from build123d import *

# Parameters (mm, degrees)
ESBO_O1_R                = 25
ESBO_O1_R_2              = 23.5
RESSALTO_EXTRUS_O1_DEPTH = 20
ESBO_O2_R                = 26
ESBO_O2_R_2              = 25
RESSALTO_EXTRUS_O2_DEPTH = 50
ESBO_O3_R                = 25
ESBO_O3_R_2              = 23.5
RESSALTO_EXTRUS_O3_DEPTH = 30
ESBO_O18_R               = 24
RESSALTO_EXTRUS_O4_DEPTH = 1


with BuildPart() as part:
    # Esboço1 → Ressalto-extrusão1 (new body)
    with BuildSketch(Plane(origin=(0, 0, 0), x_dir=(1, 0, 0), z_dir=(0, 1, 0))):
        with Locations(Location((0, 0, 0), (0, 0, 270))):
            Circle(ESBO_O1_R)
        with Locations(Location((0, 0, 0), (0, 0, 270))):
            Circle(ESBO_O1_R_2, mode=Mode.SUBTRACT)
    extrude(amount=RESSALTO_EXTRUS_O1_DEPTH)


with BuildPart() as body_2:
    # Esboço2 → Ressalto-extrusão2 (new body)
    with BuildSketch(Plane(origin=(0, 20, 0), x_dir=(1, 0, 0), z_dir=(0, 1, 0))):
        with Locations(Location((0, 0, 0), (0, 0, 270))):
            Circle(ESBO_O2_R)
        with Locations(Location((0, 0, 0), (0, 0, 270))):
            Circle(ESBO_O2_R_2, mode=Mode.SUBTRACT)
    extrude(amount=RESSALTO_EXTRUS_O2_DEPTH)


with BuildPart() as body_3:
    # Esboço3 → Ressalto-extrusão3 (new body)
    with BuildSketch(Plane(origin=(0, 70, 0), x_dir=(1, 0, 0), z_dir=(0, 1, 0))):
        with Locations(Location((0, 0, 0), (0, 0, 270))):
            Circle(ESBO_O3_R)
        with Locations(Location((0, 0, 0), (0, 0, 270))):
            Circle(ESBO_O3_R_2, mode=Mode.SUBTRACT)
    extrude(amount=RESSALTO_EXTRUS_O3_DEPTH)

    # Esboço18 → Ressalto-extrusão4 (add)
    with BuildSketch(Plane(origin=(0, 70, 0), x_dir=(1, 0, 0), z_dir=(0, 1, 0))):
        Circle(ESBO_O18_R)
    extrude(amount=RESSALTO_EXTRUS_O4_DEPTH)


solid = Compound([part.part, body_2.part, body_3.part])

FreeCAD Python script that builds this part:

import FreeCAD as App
import Part
import Sketcher

V = App.Vector
Q = App.Units.Quantity

doc = App.newDocument("Part")
params = doc.addObject("Spreadsheet::Sheet", "Params")
for row, (alias, value) in enumerate([
    ("sketch1_diameter", "50 mm"),
    ("sketch1_diameter2", "47 mm"),
    ("pad1_length", "20 mm"),
    ("sketch2_diameter", "52 mm"),
    ("sketch2_diameter2", "50 mm"),
    ("pad2_length", "50 mm"),
    ("sketch3_diameter", "50 mm"),
    ("sketch3_diameter2", "47 mm"),
    ("pad3_length", "30 mm"),
    ("sketch4_diameter", "48 mm"),
    ("pad4_length", "1 mm"),
], start=1):
    params.set(f"A{row}", alias)
    params.set(f"B{row}", "=" + value)
    params.setAlias(f"B{row}", alias)

body = doc.addObject("PartDesign::Body", "Body")

sketch1 = body.newObject("Sketcher::SketchObject", "Sketch")
sketch1.AttachmentSupport = (doc.getObject("XZ_Plane"), [""])
sketch1.MapMode = "FlatFace"
sketch1.addGeometry(Part.Circle(V(0, 0, 0), V(0, 0, 1), 25), False)
sketch1.addGeometry(Part.Circle(V(0, 0, 0), V(0, 0, 1), 24), False)
sketch1.addConstraint(Sketcher.Constraint("Coincident", 0, 3, -1, 1))
sketch1.addConstraint(Sketcher.Constraint("Coincident", 1, 3, -1, 1))
sketch1.addConstraint(Sketcher.Constraint("Diameter", 0, Q("50 mm")))
sketch1.addConstraint(Sketcher.Constraint("Diameter", 1, Q("47 mm")))
sketch1.setExpression("Constraints[2]", "Params.sketch1_diameter")
sketch1.setExpression("Constraints[3]", "Params.sketch1_diameter2")
pad1 = body.newObject("PartDesign::Pad", "Pad")
pad1.Profile = sketch1
pad1.setExpression("Length", "Params.pad1_length")
pad1.Reversed = True
body2 = doc.addObject("PartDesign::Body", "Body001")

sketch2 = body2.newObject("Sketcher::SketchObject", "Sketch001")
sketch2.AttachmentSupport = (doc.getObject("XZ_Plane001"), [""])
sketch2.MapMode = "FlatFace"
sketch2.AttachmentOffset = App.Placement(V(0, 0, -20), App.Rotation())
sketch2.addGeometry(Part.Circle(V(0, 0, 0), V(0, 0, 1), 26), False)
sketch2.addGeometry(Part.Circle(V(0, 0, 0), V(0, 0, 1), 25), False)
sketch2.addConstraint(Sketcher.Constraint("Coincident", 0, 3, -1, 1))
sketch2.addConstraint(Sketcher.Constraint("Coincident", 1, 3, -1, 1))
sketch2.addConstraint(Sketcher.Constraint("Diameter", 0, Q("52 mm")))
sketch2.addConstraint(Sketcher.Constraint("Diameter", 1, Q("50 mm")))
sketch2.setExpression("Constraints[2]", "Params.sketch2_diameter")
sketch2.setExpression("Constraints[3]", "Params.sketch2_diameter2")
pad2 = body2.newObject("PartDesign::Pad", "Pad001")
pad2.Profile = sketch2
pad2.setExpression("Length", "Params.pad2_length")
pad2.Reversed = True
body3 = doc.addObject("PartDesign::Body", "Body002")

sketch3 = body3.newObject("Sketcher::SketchObject", "Sketch002")
sketch3.AttachmentSupport = (doc.getObject("XZ_Plane002"), [""])
sketch3.MapMode = "FlatFace"
sketch3.AttachmentOffset = App.Placement(V(0, 0, -70), App.Rotation())
sketch3.addGeometry(Part.Circle(V(0, 0, 0), V(0, 0, 1), 25), False)
sketch3.addGeometry(Part.Circle(V(0, 0, 0), V(0, 0, 1), 24), False)
sketch3.addConstraint(Sketcher.Constraint("Coincident", 0, 3, -1, 1))
sketch3.addConstraint(Sketcher.Constraint("Coincident", 1, 3, -1, 1))
sketch3.addConstraint(Sketcher.Constraint("Diameter", 0, Q("50 mm")))
sketch3.addConstraint(Sketcher.Constraint("Diameter", 1, Q("47 mm")))
sketch3.setExpression("Constraints[2]", "Params.sketch3_diameter")
sketch3.setExpression("Constraints[3]", "Params.sketch3_diameter2")
pad3 = body3.newObject("PartDesign::Pad", "Pad002")
pad3.Profile = sketch3
pad3.setExpression("Length", "Params.pad3_length")
pad3.Reversed = True

sketch4 = body3.newObject("Sketcher::SketchObject", "Sketch003")
sketch4.AttachmentSupport = (doc.getObject("XZ_Plane002"), [""])
sketch4.MapMode = "FlatFace"
sketch4.AttachmentOffset = App.Placement(V(0, 0, -70), App.Rotation())
sketch4.addGeometry(Part.Circle(V(0, 0, 0), V(0, 0, 1), 24), False)
sketch4.addConstraint(Sketcher.Constraint("Coincident", 0, 3, -1, 1))
sketch4.addConstraint(Sketcher.Constraint("Diameter", 0, Q("48 mm")))
sketch4.setExpression("Constraints[1]", "Params.sketch4_diameter")
pad4 = body3.newObject("PartDesign::Pad", "Pad003")
pad4.Profile = sketch4
pad4.setExpression("Length", "Params.pad4_length")
pad4.Reversed = True

doc.recompute()
